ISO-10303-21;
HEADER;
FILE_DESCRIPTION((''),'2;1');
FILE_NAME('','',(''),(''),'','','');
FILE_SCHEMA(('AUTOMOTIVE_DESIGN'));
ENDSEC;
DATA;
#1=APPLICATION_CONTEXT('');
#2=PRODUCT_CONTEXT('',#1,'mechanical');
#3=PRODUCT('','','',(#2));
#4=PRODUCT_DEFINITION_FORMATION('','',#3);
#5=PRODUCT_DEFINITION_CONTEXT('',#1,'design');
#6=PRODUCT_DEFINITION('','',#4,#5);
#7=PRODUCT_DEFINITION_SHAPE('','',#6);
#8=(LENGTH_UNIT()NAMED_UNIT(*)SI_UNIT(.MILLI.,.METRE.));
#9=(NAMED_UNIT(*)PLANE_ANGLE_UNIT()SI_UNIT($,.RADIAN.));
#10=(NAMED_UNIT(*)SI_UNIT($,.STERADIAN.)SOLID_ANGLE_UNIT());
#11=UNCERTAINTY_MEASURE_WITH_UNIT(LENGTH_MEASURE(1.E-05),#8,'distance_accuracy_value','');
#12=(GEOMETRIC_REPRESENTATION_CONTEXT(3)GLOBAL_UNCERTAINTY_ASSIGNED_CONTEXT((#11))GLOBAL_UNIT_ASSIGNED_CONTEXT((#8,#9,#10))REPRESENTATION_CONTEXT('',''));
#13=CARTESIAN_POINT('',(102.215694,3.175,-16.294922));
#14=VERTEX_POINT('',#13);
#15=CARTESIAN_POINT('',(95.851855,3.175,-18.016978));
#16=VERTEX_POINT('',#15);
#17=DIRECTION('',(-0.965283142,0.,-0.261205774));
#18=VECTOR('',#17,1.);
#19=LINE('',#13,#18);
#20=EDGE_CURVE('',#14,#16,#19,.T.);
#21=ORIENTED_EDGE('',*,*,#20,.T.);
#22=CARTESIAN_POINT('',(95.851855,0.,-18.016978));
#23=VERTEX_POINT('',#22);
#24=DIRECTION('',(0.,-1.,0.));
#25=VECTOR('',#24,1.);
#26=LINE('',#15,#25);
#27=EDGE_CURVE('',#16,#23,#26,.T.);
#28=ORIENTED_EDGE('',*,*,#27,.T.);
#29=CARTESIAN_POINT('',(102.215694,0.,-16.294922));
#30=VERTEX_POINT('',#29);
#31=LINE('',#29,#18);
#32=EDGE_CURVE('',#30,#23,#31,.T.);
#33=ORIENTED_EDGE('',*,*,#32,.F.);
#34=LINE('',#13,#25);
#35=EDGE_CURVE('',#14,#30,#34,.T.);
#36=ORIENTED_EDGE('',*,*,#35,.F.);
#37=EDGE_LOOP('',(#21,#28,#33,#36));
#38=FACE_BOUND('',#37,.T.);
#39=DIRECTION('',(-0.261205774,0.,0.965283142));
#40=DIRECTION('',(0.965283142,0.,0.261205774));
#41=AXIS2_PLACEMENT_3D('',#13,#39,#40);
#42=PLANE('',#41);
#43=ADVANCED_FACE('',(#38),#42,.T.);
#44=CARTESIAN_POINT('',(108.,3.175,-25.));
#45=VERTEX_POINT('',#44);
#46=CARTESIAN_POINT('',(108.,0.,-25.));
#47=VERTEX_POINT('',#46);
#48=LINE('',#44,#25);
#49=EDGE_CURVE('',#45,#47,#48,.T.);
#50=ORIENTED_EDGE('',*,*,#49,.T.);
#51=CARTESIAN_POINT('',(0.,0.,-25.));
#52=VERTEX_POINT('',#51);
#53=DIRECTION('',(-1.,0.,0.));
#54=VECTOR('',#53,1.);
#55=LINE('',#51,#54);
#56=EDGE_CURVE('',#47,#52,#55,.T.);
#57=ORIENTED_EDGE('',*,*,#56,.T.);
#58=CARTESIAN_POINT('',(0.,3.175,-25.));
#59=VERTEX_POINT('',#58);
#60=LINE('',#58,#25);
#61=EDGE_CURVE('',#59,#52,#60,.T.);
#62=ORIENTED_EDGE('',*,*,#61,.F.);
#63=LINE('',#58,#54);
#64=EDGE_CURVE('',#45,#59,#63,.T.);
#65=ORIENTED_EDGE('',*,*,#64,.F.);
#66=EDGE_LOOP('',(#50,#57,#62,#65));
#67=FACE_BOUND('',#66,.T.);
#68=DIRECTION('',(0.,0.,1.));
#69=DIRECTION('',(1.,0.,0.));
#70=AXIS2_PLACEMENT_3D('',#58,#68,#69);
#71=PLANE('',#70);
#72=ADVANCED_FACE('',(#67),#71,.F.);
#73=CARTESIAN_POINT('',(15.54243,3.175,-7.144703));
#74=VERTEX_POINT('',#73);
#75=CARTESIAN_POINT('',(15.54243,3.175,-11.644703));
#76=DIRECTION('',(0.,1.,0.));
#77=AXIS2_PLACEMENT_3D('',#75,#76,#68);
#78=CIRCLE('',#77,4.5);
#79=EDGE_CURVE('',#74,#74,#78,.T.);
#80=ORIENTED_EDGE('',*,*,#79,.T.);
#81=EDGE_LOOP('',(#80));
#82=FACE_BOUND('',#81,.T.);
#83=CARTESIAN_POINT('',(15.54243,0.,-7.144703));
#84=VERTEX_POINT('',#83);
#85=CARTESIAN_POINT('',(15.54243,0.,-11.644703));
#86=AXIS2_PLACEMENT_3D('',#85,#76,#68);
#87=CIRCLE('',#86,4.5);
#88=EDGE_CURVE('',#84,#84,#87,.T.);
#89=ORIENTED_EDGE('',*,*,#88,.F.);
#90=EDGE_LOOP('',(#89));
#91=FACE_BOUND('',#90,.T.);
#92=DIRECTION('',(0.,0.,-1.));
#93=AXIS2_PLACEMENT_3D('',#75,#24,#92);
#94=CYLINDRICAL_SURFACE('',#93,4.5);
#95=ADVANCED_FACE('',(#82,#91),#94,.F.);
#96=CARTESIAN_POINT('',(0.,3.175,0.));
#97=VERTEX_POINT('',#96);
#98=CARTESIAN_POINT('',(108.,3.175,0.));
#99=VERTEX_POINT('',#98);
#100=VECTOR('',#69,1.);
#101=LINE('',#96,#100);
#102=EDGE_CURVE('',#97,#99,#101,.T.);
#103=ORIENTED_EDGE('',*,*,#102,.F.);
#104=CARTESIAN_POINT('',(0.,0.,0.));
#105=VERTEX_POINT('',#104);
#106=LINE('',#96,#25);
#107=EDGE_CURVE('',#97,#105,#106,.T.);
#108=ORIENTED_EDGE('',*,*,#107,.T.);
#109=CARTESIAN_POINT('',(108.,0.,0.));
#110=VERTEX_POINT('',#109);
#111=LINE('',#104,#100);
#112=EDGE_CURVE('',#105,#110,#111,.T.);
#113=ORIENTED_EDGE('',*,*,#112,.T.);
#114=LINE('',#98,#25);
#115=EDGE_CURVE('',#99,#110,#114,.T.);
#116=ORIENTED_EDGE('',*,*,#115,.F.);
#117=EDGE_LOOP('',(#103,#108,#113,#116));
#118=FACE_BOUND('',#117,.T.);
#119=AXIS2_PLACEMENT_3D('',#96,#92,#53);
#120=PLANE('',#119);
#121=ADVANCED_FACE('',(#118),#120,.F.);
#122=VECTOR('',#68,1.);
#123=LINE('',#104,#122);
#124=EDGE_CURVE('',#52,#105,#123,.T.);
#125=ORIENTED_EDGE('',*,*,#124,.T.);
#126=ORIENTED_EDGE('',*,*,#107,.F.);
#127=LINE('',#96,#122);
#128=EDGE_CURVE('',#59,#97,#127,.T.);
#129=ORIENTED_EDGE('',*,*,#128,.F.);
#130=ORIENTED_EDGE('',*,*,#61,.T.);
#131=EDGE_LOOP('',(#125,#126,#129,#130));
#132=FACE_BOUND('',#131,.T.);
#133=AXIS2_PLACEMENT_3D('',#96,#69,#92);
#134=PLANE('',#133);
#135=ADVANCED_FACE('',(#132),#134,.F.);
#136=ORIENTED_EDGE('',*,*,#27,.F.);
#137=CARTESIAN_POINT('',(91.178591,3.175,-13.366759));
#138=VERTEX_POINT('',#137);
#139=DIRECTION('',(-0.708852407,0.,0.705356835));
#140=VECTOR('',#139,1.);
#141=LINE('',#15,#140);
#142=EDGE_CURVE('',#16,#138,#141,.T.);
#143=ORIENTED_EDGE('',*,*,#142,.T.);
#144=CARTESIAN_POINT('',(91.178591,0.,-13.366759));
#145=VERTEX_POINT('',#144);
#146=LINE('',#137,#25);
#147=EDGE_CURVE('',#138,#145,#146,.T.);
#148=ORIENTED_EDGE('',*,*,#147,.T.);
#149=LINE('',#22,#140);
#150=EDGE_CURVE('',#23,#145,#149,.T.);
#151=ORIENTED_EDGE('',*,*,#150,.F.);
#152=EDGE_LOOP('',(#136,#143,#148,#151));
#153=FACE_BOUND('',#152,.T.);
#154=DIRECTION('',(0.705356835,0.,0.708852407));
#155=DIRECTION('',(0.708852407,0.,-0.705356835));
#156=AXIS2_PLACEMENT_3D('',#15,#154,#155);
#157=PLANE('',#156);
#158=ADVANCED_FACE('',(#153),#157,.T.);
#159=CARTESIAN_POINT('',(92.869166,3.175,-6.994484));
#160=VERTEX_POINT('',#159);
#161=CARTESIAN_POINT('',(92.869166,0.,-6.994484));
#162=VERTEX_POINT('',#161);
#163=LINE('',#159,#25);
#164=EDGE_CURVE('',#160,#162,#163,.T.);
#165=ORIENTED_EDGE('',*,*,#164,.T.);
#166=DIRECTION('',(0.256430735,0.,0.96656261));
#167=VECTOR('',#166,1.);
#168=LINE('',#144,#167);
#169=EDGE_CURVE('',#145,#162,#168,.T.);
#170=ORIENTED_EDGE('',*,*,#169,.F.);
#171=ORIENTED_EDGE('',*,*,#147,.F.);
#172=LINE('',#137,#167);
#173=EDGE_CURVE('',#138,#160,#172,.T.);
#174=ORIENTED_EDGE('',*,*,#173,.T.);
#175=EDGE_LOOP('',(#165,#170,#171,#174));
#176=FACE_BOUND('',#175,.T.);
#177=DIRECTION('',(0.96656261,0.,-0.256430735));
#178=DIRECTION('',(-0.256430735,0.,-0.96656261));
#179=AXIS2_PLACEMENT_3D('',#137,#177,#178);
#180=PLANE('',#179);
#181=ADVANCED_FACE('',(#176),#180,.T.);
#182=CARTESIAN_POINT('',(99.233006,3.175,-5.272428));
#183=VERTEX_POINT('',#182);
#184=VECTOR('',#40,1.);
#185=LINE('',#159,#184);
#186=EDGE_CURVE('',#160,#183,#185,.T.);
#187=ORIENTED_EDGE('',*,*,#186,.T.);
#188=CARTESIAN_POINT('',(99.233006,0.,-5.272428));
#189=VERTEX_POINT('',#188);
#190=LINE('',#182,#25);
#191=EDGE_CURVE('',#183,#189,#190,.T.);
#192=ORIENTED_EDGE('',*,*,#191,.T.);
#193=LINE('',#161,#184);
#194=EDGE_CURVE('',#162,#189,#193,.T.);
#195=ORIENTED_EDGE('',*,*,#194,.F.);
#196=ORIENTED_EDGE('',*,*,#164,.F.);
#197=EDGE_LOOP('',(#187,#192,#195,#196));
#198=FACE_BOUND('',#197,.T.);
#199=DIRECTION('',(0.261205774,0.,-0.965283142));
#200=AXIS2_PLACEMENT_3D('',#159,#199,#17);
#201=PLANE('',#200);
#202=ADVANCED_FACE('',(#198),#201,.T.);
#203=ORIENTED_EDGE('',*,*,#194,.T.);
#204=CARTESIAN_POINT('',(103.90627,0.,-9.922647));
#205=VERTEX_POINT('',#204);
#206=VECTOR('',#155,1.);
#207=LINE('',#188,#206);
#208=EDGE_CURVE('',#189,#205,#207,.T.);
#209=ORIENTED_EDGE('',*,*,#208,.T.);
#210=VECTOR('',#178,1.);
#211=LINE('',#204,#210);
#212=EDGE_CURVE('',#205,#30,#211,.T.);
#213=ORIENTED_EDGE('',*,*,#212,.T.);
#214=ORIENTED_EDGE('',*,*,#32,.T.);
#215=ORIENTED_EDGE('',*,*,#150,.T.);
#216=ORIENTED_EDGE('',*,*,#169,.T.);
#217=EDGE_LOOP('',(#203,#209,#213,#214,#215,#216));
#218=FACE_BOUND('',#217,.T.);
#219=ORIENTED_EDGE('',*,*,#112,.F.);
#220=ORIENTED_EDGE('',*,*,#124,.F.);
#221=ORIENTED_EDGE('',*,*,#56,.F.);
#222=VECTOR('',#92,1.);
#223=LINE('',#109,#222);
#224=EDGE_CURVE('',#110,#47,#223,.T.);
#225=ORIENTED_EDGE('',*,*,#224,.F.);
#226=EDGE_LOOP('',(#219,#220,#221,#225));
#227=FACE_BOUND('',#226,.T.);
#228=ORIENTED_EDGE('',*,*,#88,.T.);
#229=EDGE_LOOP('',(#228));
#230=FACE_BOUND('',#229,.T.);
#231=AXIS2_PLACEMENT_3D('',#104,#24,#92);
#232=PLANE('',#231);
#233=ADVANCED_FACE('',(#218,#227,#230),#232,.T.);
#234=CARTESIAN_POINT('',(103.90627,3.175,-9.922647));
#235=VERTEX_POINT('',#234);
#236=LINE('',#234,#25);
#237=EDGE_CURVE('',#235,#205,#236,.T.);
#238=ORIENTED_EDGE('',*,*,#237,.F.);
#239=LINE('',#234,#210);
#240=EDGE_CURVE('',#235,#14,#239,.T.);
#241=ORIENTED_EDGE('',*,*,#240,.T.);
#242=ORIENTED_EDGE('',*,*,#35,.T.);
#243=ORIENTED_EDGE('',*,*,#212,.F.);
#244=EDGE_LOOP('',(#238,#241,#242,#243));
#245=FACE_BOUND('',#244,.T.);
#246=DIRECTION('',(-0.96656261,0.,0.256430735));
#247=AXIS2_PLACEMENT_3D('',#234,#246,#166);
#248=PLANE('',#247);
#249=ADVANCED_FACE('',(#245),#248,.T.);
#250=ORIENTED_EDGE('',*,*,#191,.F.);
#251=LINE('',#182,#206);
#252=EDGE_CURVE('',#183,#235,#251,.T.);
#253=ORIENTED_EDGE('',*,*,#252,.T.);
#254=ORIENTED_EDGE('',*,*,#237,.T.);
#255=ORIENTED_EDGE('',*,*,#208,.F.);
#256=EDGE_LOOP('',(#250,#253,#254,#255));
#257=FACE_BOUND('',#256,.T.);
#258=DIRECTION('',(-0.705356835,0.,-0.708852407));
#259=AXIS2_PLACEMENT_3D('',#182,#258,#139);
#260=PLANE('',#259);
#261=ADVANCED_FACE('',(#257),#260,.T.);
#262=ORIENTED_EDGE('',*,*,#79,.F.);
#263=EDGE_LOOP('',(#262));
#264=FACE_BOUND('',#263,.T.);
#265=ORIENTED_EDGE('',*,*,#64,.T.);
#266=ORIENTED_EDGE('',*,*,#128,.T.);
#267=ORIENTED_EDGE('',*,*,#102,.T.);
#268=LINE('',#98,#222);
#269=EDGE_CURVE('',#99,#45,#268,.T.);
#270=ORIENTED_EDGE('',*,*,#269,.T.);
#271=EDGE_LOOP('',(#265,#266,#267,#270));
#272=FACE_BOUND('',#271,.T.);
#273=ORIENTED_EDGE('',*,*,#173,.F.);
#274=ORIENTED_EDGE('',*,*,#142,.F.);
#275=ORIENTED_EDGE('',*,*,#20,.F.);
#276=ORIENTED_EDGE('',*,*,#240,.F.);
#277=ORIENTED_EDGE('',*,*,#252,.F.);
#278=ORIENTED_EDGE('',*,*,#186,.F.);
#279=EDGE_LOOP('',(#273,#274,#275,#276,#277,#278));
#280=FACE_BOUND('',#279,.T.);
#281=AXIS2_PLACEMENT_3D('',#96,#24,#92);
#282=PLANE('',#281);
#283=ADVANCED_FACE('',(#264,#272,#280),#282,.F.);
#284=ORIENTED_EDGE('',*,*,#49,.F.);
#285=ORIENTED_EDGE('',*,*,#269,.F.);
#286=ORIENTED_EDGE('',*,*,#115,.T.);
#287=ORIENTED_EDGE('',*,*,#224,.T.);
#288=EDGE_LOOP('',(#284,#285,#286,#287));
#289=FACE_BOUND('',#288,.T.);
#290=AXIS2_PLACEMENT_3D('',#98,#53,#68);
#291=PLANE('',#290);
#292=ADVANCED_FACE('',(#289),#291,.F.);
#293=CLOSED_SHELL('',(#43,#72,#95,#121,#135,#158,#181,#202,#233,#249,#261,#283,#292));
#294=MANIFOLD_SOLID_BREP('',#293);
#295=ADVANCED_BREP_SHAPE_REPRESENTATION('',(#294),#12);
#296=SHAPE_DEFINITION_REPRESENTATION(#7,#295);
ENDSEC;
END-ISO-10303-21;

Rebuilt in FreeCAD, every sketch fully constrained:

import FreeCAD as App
import Part
import Sketcher

doc = App.newDocument("Part")
params = doc.addObject("Spreadsheet::Sheet", "Params")
for row, (alias, value) in enumerate([
    ("sketch1_diameter", "9 mm"),
    ("sketch1_width", "108 mm"),
    ("sketch1_height", "25 mm"),
    ("pad1_length", "3.175 mm"),
], start=1):
    params.set(f"A{row}", alias)
    params.set(f"B{row}", "=" + value)
    params.setAlias(f"B{row}", alias)

body = doc.addObject("PartDesign::Body", "Body")

# Sketch on XZ plane
sketch1 = body.newObject("Sketcher::SketchObject", "Sketch")
sketch1.AttachmentSupport = (doc.getObject("XZ_Plane"), [""])
sketch1.MapMode = "FlatFace"
sketch1.addGeometry(Part.LineSegment(App.Vector(0, -25, 0), App.Vector(0, 0, 0)), False)
sketch1.addGeometry(Part.LineSegment(App.Vector(0, 0, 0), App.Vector(108, 0, 0)), False)
sketch1.addGeometry(Part.LineSegment(App.Vector(108, 0, 0), App.Vector(108, -25, 0)), False)
sketch1.addGeometry(Part.LineSegment(App.Vector(108, -25, 0), App.Vector(0, -25, 0)), False)
sketch1.addGeometry(Part.Circle(App.Vector(15.5, -11.6, 0), App.Vector(0, 0, 1), 4.5), False)
sketch1.addGeometry(Part.LineSegment(App.Vector(91.2, -13.4, 0), App.Vector(95.9, -18, 0)), False)
sketch1.addGeometry(Part.LineSegment(App.Vector(95.9, -18, 0), App.Vector(102.2, -16.3, 0)), False)
sketch1.addGeometry(Part.LineSegment(App.Vector(102.2, -16.3, 0), App.Vector(103.9, -9.9, 0)), False)
sketch1.addGeometry(Part.LineSegment(App.Vector(103.9, -9.9, 0), App.Vector(99.2, -5.3, 0)), False)
sketch1.addGeometry(Part.LineSegment(App.Vector(99.2, -5.3, 0), App.Vector(92.9, -7, 0)), False)
sketch1.addGeometry(Part.LineSegment(App.Vector(92.9, -7, 0), App.Vector(91.2, -13.4, 0)), False)
sketch1.addConstraint(Sketcher.Constraint("Coincident", 0, 2, 1, 1))
sketch1.addConstraint(Sketcher.Constraint("Coincident", 1, 2, 2, 1))
sketch1.addConstraint(Sketcher.Constraint("Coincident", 2, 2, 3, 1))
sketch1.addConstraint(Sketcher.Constraint("Coincident", 3, 2, 0, 1))
sketch1.addConstraint(Sketcher.Constraint("Coincident", 5, 2, 6, 1))
sketch1.addConstraint(Sketcher.Constraint("Coincident", 6, 2, 7, 1))
sketch1.addConstraint(Sketcher.Constraint("Coincident", 7, 2, 8, 1))
sketch1.addConstraint(Sketcher.Constraint("Coincident", 8, 2, 9, 1))
sketch1.addConstraint(Sketcher.Constraint("Coincident", 9, 2, 10, 1))
sketch1.addConstraint(Sketcher.Constraint("Coincident", 10, 2, 5, 1))
sketch1.addConstraint(Sketcher.Constraint("Vertical", 0))
sketch1.addConstraint(Sketcher.Constraint("Horizontal", 1))
sketch1.addConstraint(Sketcher.Constraint("Vertical", 2))
sketch1.addConstraint(Sketcher.Constraint("Horizontal", 3))
sketch1.addConstraint(Sketcher.Constraint("Coincident", 0, 2, -1, 1))
sketch1.addConstraint(Sketcher.Constraint("Parallel", 5, 8))
sketch1.addConstraint(Sketcher.Constraint("Parallel", 6, 9))
sketch1.addConstraint(Sketcher.Constraint("Parallel", 7, 10))
sketch1.addConstraint(Sketcher.Constraint("Equal", 5, 6))
sketch1.addConstraint(Sketcher.Constraint("Equal", 6, 7))
sketch1.addConstraint(Sketcher.Constraint("Equal", 7, 8))
sketch1.addConstraint(Sketcher.Constraint("Diameter", 4, 9.0))
sketch1.addConstraint(Sketcher.Constraint("DistanceX", 1, 1, 1, 2, 108.0))
sketch1.addConstraint(Sketcher.Constraint("DistanceY", 0, 1, 0, 2, 25.0))
sketch1.addConstraint(Sketcher.Constraint("Distance", 5, 6.592718))
sketch1.addConstraint(Sketcher.Constraint("DistanceX", -1, 1, 4, 3, 15.54243))
sketch1.addConstraint(Sketcher.Constraint("DistanceY", 6, 2, -1, 1, 16.294922))
sketch1.addConstraint(Sketcher.Constraint("DistanceX", -1, 1, 7, 2, 103.90627))
sketch1.addConstraint(Sketcher.Constraint("DistanceX", -1, 1, 10, 2, 91.178591))
sketch1.addConstraint(Sketcher.Constraint("DistanceY", 10, 2, -1, 1, 13.366759))
sketch1.addConstraint(Sketcher.Constraint("DistanceX", 5, 2, 6, 2, 6.36384))
sketch1.addConstraint(Sketcher.Constraint("DistanceY", 6, 2, 4, 3, 4.650219))
sketch1.setExpression("Constraints[21]", "Params.sketch1_diameter")
sketch1.setExpression("Constraints[22]", "Params.sketch1_width")
sketch1.setExpression("Constraints[23]", "Params.sketch1_height")
pad1 = body.newObject("PartDesign::Pad", "Pad")
pad1.Profile = sketch1
pad1.setExpression("Length", "Params.pad1_length")
pad1.Reversed = True

doc.recompute()
